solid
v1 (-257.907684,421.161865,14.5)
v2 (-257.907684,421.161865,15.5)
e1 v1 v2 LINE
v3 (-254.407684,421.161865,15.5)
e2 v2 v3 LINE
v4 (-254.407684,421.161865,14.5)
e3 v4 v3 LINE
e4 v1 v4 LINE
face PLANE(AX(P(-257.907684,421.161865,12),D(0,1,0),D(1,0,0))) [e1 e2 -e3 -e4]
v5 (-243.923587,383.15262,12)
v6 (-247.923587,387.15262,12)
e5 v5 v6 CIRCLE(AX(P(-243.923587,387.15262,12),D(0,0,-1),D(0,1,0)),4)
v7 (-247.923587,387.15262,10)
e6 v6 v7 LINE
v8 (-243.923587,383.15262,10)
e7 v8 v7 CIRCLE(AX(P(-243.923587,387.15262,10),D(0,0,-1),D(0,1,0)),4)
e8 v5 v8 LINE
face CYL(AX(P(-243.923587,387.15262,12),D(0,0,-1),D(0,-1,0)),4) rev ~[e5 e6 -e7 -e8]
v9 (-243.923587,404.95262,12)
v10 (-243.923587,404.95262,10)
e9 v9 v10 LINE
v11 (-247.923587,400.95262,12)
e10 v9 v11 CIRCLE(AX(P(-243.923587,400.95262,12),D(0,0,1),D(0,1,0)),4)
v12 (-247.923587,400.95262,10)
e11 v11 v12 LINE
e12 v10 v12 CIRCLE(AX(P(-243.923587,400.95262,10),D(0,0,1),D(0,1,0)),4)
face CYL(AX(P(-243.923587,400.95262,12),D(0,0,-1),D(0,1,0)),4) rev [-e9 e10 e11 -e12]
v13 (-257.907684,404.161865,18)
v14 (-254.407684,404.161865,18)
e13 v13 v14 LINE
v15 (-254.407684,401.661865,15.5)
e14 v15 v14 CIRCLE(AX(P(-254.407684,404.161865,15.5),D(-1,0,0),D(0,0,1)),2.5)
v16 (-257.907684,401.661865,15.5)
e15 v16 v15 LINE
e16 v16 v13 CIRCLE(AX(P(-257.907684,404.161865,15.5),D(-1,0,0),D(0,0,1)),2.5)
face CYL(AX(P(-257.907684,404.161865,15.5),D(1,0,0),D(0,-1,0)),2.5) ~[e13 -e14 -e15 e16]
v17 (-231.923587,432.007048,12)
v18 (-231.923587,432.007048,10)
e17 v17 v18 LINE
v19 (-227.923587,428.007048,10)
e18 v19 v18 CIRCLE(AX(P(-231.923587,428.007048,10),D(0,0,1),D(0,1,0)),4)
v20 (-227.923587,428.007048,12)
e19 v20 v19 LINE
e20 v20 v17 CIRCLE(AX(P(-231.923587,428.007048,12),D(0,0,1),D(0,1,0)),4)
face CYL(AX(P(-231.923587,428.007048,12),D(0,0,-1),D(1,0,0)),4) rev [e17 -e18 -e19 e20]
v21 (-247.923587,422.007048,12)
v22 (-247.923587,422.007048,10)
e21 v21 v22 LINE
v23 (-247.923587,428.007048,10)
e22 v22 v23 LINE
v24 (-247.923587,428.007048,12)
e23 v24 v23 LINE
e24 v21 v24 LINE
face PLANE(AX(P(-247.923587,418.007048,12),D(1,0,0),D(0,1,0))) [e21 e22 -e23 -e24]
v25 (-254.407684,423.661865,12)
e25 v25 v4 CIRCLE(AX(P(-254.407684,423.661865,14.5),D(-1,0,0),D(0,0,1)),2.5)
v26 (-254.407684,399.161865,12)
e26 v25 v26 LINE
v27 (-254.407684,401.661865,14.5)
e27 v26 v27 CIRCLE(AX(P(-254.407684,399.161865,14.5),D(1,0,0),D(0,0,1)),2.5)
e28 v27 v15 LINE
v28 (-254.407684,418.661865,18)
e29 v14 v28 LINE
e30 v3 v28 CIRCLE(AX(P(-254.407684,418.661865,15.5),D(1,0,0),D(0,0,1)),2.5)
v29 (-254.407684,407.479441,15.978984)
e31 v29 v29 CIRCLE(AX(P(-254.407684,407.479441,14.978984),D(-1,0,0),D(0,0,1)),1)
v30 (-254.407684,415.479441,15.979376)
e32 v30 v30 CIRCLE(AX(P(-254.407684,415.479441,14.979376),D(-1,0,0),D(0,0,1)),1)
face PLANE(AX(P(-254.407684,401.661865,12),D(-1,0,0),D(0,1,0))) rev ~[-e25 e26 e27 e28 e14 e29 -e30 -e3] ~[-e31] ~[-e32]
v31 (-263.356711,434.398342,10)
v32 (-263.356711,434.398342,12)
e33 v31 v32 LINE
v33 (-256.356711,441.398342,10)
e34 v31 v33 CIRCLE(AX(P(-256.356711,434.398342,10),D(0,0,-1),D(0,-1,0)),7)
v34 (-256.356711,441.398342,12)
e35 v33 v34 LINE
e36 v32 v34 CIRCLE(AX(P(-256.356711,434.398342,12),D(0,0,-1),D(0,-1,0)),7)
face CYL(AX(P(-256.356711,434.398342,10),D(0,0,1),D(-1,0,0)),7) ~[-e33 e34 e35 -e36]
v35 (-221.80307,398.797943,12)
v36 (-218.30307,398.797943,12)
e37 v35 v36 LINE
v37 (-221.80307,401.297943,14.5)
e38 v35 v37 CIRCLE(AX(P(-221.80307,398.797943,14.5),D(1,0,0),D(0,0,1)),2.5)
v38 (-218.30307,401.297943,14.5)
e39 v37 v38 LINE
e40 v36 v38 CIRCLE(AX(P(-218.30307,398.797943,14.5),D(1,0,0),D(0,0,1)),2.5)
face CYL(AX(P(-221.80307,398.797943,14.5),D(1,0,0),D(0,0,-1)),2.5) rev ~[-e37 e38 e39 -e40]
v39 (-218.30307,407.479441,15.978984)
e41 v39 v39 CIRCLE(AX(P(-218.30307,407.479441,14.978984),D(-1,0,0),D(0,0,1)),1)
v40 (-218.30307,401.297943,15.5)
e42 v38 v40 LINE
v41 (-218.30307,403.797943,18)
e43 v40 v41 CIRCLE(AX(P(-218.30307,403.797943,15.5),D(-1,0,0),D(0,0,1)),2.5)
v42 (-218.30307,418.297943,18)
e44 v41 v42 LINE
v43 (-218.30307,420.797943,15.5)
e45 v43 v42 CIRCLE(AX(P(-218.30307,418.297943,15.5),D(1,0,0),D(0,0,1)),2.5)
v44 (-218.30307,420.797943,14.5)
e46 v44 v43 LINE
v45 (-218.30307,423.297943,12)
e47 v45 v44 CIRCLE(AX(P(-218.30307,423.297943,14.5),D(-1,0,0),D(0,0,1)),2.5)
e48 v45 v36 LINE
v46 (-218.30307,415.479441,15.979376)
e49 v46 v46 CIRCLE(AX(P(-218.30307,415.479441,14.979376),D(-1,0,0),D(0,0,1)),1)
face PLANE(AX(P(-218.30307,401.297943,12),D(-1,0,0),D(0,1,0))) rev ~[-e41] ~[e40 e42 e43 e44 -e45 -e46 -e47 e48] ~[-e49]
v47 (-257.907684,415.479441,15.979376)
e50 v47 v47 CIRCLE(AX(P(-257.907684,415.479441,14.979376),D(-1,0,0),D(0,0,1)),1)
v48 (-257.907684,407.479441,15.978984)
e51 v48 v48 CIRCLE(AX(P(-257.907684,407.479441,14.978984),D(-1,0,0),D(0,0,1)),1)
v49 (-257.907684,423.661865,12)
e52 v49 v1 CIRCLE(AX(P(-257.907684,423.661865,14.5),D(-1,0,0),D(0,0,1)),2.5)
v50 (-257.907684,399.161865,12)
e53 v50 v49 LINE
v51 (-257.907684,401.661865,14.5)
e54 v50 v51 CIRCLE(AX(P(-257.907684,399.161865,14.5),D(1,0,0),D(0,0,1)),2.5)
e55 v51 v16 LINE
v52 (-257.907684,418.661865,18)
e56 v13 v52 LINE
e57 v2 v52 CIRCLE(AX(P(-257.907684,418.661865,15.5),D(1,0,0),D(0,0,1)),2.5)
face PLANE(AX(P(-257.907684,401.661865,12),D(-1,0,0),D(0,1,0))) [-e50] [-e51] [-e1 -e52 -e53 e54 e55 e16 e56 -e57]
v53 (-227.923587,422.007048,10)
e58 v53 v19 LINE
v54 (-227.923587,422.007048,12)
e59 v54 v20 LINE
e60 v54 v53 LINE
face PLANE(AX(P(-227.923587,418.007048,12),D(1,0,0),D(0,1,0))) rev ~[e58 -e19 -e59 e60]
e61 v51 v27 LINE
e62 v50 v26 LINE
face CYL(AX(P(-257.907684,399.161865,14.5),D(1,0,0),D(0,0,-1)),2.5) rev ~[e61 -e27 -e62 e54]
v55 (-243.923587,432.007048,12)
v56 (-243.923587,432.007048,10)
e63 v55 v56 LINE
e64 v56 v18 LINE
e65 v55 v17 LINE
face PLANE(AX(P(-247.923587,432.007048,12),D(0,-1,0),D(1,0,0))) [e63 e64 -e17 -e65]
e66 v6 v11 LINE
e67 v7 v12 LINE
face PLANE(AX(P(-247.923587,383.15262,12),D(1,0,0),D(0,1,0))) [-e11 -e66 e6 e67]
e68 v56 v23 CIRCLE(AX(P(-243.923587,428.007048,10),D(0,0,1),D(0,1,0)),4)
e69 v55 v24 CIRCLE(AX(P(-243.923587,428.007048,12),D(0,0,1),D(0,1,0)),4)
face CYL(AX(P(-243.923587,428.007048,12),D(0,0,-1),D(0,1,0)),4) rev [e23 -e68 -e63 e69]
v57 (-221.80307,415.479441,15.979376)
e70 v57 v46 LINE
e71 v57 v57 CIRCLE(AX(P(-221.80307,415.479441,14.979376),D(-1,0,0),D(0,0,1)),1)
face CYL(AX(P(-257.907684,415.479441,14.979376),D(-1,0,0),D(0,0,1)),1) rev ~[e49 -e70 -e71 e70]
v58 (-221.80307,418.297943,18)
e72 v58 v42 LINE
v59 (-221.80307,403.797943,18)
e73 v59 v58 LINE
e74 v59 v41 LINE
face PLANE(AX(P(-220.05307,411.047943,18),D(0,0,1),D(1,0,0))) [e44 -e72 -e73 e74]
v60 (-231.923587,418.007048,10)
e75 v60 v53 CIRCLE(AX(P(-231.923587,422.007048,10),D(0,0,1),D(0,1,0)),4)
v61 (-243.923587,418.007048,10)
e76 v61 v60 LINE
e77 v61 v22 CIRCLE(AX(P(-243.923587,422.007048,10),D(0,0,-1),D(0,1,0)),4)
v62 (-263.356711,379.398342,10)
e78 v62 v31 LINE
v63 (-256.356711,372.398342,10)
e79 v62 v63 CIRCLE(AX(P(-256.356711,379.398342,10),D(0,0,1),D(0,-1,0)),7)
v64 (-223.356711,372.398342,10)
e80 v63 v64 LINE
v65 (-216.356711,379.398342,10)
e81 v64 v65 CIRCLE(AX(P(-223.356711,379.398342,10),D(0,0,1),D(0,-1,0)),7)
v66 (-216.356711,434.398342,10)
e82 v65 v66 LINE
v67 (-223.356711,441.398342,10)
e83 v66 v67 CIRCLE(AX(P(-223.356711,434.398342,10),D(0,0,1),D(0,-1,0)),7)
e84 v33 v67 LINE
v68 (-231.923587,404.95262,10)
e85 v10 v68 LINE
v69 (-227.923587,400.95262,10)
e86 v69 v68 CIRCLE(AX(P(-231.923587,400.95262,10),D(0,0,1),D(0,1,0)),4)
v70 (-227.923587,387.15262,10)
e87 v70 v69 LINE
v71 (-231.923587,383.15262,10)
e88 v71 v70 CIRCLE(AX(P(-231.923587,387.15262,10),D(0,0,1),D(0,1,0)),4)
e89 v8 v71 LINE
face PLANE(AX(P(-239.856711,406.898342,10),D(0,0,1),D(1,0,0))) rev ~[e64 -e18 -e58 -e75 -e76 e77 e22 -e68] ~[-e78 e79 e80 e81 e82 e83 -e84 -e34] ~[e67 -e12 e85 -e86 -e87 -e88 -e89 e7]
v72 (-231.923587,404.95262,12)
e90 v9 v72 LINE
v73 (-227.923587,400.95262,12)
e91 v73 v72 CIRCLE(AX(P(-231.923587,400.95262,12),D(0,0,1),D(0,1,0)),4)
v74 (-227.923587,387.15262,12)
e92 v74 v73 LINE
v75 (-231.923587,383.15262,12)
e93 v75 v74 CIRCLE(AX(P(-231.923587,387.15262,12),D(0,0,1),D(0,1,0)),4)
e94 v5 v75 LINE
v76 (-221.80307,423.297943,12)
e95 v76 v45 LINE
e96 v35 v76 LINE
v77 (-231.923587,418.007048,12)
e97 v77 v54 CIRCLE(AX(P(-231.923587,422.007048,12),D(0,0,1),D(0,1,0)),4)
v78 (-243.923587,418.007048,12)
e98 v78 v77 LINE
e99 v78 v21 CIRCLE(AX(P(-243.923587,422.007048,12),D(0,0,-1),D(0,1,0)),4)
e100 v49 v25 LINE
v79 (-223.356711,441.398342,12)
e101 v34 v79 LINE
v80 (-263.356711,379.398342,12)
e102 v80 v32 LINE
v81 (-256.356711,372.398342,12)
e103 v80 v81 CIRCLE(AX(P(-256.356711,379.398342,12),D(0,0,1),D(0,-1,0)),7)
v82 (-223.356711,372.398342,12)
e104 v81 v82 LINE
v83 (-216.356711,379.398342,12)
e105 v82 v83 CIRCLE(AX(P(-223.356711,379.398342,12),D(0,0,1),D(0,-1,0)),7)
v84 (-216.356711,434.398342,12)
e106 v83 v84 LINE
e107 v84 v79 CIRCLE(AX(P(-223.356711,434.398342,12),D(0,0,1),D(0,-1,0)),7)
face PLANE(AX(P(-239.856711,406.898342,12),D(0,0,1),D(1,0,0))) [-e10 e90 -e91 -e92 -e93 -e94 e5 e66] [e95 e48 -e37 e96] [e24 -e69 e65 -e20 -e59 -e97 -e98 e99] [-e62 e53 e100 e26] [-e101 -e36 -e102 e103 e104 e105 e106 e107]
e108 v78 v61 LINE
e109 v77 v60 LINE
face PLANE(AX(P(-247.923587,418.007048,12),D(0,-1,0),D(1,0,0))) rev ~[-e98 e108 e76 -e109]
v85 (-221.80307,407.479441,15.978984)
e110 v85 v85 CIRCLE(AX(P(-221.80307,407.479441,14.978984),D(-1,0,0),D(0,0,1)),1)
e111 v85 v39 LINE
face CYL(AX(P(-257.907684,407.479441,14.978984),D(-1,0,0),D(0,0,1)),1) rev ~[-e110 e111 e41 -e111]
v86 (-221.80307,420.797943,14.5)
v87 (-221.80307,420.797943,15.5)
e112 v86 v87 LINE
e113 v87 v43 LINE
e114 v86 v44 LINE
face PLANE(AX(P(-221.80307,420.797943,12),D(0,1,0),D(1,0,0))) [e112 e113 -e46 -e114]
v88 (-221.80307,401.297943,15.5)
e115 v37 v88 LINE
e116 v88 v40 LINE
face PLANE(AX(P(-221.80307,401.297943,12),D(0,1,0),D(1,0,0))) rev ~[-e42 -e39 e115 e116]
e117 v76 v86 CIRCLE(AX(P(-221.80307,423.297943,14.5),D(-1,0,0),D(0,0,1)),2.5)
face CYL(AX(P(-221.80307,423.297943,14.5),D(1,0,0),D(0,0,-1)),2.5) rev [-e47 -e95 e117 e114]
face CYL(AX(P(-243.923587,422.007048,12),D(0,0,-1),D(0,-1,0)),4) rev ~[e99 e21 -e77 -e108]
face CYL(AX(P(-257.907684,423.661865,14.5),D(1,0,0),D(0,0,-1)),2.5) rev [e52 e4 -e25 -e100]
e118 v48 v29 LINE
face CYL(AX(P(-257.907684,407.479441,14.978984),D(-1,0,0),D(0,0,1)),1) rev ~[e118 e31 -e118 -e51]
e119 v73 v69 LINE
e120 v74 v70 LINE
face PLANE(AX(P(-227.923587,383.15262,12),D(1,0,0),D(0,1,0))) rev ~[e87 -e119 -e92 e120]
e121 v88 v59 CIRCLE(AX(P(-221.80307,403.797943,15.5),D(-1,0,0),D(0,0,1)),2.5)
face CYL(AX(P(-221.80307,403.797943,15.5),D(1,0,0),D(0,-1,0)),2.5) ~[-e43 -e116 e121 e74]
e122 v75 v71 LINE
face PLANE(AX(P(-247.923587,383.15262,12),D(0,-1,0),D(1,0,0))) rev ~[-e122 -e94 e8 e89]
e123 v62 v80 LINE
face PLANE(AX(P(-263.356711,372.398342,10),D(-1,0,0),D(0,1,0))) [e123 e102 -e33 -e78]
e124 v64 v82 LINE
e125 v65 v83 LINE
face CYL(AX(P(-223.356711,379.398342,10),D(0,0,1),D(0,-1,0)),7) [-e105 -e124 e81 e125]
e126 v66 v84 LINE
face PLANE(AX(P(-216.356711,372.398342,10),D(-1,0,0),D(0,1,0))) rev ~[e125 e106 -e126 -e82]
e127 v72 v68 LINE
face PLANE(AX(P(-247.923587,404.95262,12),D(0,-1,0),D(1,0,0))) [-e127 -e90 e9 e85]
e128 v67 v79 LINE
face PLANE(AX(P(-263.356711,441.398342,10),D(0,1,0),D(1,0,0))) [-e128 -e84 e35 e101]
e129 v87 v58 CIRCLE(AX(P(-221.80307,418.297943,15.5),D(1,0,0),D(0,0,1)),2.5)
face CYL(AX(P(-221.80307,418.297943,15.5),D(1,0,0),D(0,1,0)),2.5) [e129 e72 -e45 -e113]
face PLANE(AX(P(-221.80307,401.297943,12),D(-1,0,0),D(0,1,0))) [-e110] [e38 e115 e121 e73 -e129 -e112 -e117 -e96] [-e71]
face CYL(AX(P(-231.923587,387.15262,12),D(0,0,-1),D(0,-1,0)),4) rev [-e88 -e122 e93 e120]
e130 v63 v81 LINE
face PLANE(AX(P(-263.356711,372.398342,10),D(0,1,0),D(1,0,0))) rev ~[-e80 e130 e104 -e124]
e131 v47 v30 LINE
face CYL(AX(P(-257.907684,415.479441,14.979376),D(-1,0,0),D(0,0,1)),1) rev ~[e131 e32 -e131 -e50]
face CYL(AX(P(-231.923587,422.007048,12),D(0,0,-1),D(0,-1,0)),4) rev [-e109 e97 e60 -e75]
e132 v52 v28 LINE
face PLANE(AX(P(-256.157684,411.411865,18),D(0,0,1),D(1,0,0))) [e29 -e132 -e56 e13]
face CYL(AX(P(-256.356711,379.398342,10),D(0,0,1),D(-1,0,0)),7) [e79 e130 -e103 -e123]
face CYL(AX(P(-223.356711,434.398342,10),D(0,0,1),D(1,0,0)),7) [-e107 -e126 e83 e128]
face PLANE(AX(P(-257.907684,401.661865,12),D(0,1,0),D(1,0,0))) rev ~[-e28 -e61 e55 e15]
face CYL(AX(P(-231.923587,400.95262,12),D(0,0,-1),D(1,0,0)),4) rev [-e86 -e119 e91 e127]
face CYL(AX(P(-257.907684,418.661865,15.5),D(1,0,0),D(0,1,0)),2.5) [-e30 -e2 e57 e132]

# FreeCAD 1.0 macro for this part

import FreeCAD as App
import Part
import Sketcher
from FreeCAD import Vector
Q = App.Units.Quantity


def edges_at(feature, points):
    """Names of the edges that pass closest to the given points."""
    edges = feature.Shape.Edges
    near = lambda p: min(range(len(edges)), key=lambda i: edges[i].distToShape(Part.Vertex(*p))[0])
    return sorted({f"Edge{near(p) + 1}" for p in points})


def add_polygon(sketch, points):
    """Adds a closed chain of lines whose ends are joined by coincident constraints."""
    first, n = sketch.GeometryCount, len(points)
    for a, b in zip(points, points[1:] + points[:1]):
        sketch.addGeometry(Part.LineSegment(App.Vector(*a, 0), App.Vector(*b, 0)), False)
    for i in range(n):
        sketch.addConstraint(Sketcher.Constraint("Coincident", first + i, 2, first + (i + 1) % n, 1))

doc = App.newDocument("Part")
body = doc.addObject("PartDesign::Body", "Body")

# Sketch on XY plane
sketch1 = body.newObject("Sketcher::SketchObject", "Sketch")
sketch1.AttachmentSupport = (doc.getObject("XY_Plane"), [""])
sketch1.MapMode = "FlatFace"
sketch1.AttachmentOffset = App.Placement(Vector(0, 0, 10), App.Rotation())
add_polygon(sketch1, [(-263, 441), (-263, 372), (-216, 372), (-216, 441)])  # lines 0-3
sketch1.addConstraint([
    Sketcher.Constraint("Vertical", 0),
    Sketcher.Constraint("Horizontal", 1),
    Sketcher.Constraint("Vertical", 2),
    Sketcher.Constraint("Horizontal", 3),
    Sketcher.Constraint("DistanceX", 1, 1, 1, 2, Q("47 mm")),
    Sketcher.Constraint("DistanceY", 0, 2, 0, 1, Q("69 mm")),
    Sketcher.Constraint("DistanceX", 0, 2, -1, 1, Q("263.356711 mm")),
    Sketcher.Constraint("DistanceY", -1, 1, 0, 2, Q("372.398342 mm")),
])
pad1 = body.newObject("PartDesign::Pad", "Pad")
pad1.Profile = sketch1
pad1.Length = 2
doc.recompute()

fillet = body.newObject("PartDesign::Fillet", "Fillet")
fillet.Base = (pad1, edges_at(pad1, [
    (-263.357, 441.398, 11),
    (-216.357, 441.398, 11),
    (-216.357, 372.398, 11),
    (-263.357, 372.398, 11),
]))
fillet.Radius = 7

# Sketch on XY plane
sketch2 = body.newObject("Sketcher::SketchObject", "Sketch001")
sketch2.AttachmentSupport = (doc.getObject("XY_Plane"), [""])
sketch2.MapMode = "FlatFace"
sketch2.AttachmentOffset = App.Placement(Vector(0, 0, 12), App.Rotation())
add_polygon(sketch2, [(-248, 432), (-248, 418), (-228, 418), (-228, 432)])  # lines 0-3
add_polygon(sketch2, [(-248, 405), (-248, 383), (-228, 383), (-228, 405)])  # lines 4-7
sketch2.addConstraint([
    Sketcher.Constraint("Vertical", 0),
    Sketcher.Constraint("Horizontal", 1),
    Sketcher.Constraint("Vertical", 2),
    Sketcher.Constraint("Horizontal", 3),
    Sketcher.Constraint("Vertical", 4),
    Sketcher.Constraint("Horizontal", 5),
    Sketcher.Constraint("Vertical", 6),
    Sketcher.Constraint("Horizontal", 7),
    Sketcher.Constraint("Vertical", 3, 2, 4, 2),
    Sketcher.Constraint("Vertical", 2, 2, 5, 2),
    Sketcher.Constraint("DistanceX", 1, 1, 1, 2, Q("20 mm")),
    Sketcher.Constraint("DistanceY", 0, 2, 0, 1, Q("14 mm")),
    Sketcher.Constraint("DistanceY", 4, 2, 4, 1, Q("21.8 mm")),
    Sketcher.Constraint("DistanceY", -1, 1, 4, 2, Q("383.15262 mm")),
    Sketcher.Constraint("DistanceX", 0, 2, -1, 1, Q("247.923587 mm")),
    Sketcher.Constraint("DistanceY", -1, 1, 0, 2, Q("418.007048 mm")),
])
pocket1 = body.newObject("PartDesign::Pocket", "Pocket")
pocket1.Profile = sketch2
pocket1.Length = 2

# Sketch on XY plane
sketch3 = body.newObject("Sketcher::SketchObject", "Sketch002")
sketch3.AttachmentSupport = (doc.getObject("XY_Plane"), [""])
sketch3.MapMode = "FlatFace"
sketch3.AttachmentOffset = App.Placement(Vector(0, 0, 12), App.Rotation())
add_polygon(sketch3, [(-221.8, 420.8), (-221.8, 401.3), (-218.3, 401.3), (-218.3, 420.8)])  # lines 0-3
add_polygon(sketch3, [(-257.9, 421.2), (-257.9, 401.7), (-254.4, 401.7), (-254.4, 421.2)])  # lines 4-7
sketch3.addConstraint([
    Sketcher.Constraint("Vertical", 0),
    Sketcher.Constraint("Horizontal", 1),
    Sketcher.Constraint("Vertical", 2),
    Sketcher.Constraint("Horizontal", 3),
    Sketcher.Constraint("Vertical", 4),
    Sketcher.Constraint("Horizontal", 5),
    Sketcher.Constraint("Vertical", 6),
    Sketcher.Constraint("Horizontal", 7),
    Sketcher.Constraint("Equal", 3, 5),
    Sketcher.Constraint("Equal", 2, 4),
    Sketcher.Constraint("DistanceX", 1, 1, 1, 2, Q("3.5 mm")),
    Sketcher.Constraint("DistanceY", 0, 2, 0, 1, Q("19.5 mm")),
    Sketcher.Constraint("DistanceX", 0, 2, -1, 1, Q("221.80307 mm")),
    Sketcher.Constraint("DistanceY", -1, 1, 0, 2, Q("401.297943 mm")),
    Sketcher.Constraint("DistanceX", 4, 2, -1, 1, Q("257.907684 mm")),
    Sketcher.Constraint("DistanceY", -1, 1, 4, 2, Q("401.661865 mm")),
])
pad2 = body.newObject("PartDesign::Pad", "Pad001")
pad2.Profile = sketch3
pad2.Length = 6
doc.recompute()

fillet2 = body.newObject("PartDesign::Fillet", "Fillet001")
fillet2.Base = (pad2, edges_at(pad2, [
    (-247.924, 418.007, 11),
    (-247.924, 432.007, 11),
    (-227.924, 432.007, 11),
    (-227.924, 418.007, 11),
    (-247.924, 383.153, 11),
    (-247.924, 404.953, 11),
    (-227.924, 404.953, 11),
    (-227.924, 383.153, 11),
]))
fillet2.Radius = 4
doc.recompute()

fillet3 = body.newObject("PartDesign::Fillet", "Fillet002")
fillet3.Base = (fillet2, edges_at(fillet2, [
    (-256.158, 421.162, 12),
    (-256.158, 401.662, 12),
    (-256.158, 421.162, 18),
    (-256.158, 401.662, 18),
    (-220.053, 401.298, 12),
    (-220.053, 420.798, 12),
    (-220.053, 401.298, 18),
    (-220.053, 420.798, 18),
]))
fillet3.Radius = 2.5

# Sketch on YZ plane
sketch4 = body.newObject("Sketcher::SketchObject", "Sketch003")
sketch4.AttachmentSupport = (doc.getObject("YZ_Plane"), [""])
sketch4.MapMode = "FlatFace"
sketch4.AttachmentOffset = App.Placement(Vector(0, 0, -257.907684), App.Rotation())
sketch4.addGeometry([
    Part.Circle(Vector(415.5, 15, 0), Vector(0, 0, 1), 1),
    Part.Circle(Vector(407.5, 15, 0), Vector(0, 0, 1), 1),
], False)
sketch4.addConstraint([
    Sketcher.Constraint("Equal", 0, 1),
    Sketcher.Constraint("Diameter", 0, Q("2 mm")),
    Sketcher.Constraint("DistanceX", 1, 3, 0, 3, Q("8 mm")),
    Sketcher.Constraint("DistanceX", -1, 1, 0, 3, Q("415.479441 mm")),
    Sketcher.Constraint("DistanceY", 1, 3, 0, 3, Q("0.000392 mm")),
    Sketcher.Constraint("DistanceY", -1, 1, 0, 3, Q("14.979376 mm")),
])
pocket2 = body.newObject("PartDesign::Pocket", "Pocket001")
pocket2.Profile = sketch4
pocket2.Type = "ThroughAll"
pocket2.Reversed = True

doc.recompute()
